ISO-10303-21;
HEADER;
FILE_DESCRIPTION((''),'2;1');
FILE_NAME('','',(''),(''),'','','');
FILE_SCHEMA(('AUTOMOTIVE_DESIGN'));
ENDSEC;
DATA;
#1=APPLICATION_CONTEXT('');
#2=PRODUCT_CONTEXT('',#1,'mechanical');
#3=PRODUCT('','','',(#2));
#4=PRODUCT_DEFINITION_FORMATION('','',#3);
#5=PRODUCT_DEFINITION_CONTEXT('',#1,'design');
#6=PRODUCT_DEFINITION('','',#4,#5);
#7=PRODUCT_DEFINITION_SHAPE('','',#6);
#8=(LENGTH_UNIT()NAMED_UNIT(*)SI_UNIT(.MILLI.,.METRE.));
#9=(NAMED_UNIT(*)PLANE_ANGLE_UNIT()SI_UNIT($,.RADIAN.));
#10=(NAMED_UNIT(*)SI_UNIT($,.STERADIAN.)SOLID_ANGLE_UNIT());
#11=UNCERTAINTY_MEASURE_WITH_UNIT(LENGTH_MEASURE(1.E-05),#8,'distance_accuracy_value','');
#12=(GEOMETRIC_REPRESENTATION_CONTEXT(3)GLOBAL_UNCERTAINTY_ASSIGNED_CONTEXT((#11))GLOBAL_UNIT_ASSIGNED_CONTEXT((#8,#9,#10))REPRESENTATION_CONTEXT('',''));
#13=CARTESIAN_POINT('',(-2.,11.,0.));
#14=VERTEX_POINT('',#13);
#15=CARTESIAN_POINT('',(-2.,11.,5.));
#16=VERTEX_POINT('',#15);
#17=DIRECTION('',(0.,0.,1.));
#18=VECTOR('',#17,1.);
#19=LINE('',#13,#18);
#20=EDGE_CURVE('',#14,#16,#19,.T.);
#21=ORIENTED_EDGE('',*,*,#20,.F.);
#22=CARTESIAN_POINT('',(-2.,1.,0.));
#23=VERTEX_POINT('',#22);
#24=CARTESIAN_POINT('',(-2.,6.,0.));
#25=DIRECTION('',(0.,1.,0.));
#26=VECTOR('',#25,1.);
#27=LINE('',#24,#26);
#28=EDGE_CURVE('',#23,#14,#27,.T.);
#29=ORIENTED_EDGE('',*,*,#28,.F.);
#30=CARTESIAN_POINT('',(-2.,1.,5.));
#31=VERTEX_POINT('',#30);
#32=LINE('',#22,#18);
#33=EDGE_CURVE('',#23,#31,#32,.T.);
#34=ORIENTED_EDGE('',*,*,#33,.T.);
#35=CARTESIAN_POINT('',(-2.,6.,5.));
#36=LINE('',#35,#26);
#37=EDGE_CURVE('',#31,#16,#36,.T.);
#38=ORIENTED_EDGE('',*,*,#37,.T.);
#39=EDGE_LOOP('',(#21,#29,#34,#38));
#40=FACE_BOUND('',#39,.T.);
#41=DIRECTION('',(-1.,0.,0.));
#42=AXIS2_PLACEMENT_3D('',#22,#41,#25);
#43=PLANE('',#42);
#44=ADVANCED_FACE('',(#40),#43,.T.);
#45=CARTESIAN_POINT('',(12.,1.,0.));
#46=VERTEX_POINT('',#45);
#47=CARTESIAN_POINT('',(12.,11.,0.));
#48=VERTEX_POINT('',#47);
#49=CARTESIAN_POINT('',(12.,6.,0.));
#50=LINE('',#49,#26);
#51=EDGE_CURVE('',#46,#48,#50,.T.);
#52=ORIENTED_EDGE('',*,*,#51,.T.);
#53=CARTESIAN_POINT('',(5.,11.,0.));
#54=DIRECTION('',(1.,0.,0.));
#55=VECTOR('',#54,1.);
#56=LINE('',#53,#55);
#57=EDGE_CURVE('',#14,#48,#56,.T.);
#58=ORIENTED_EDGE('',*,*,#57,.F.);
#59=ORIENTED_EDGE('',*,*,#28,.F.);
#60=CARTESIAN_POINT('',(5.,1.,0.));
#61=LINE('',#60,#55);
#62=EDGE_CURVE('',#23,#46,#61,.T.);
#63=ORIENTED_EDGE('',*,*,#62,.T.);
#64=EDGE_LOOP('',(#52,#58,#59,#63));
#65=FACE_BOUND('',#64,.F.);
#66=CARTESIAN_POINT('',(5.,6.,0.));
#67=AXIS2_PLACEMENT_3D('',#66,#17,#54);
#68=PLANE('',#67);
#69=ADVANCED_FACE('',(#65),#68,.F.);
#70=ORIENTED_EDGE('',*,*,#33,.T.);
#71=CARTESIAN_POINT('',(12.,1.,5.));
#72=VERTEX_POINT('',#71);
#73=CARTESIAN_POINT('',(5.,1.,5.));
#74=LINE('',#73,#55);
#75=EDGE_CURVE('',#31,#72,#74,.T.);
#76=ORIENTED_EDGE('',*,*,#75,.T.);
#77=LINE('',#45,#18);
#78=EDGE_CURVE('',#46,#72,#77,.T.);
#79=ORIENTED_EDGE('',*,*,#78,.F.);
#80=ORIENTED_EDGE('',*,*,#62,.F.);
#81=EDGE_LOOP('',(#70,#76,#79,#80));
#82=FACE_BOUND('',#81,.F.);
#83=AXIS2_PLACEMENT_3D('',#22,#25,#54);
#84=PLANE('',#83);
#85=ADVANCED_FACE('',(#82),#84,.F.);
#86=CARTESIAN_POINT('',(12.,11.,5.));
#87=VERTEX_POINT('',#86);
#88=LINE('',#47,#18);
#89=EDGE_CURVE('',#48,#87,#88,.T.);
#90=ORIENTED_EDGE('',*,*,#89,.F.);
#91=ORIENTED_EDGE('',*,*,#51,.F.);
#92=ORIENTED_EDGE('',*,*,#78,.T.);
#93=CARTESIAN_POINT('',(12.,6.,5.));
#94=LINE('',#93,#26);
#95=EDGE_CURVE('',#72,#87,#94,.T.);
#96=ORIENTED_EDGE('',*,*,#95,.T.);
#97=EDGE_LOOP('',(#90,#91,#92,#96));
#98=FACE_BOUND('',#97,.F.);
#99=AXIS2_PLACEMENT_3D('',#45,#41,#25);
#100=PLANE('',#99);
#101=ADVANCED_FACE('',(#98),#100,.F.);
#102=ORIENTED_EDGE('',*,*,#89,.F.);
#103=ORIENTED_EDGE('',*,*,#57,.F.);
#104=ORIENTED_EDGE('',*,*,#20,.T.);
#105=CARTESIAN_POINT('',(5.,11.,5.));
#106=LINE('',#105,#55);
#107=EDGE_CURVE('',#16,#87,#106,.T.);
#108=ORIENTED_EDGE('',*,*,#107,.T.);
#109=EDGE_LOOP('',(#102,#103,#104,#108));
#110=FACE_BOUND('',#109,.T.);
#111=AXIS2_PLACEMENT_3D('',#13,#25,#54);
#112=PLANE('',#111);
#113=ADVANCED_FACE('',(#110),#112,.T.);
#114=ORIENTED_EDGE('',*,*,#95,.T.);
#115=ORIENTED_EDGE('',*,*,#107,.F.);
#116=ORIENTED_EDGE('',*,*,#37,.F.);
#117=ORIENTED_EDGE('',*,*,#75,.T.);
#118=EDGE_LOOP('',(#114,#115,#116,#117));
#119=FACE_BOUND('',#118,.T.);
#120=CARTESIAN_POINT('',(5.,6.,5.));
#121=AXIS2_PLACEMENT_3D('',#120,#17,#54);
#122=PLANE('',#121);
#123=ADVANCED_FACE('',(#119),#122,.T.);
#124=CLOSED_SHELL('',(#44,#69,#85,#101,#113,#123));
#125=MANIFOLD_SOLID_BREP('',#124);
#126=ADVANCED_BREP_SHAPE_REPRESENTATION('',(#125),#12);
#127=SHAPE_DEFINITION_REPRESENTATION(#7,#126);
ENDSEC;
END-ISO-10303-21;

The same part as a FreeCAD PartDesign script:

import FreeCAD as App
import Part
import Sketcher


def add_polygon(sketch, points):
    """Adds a closed chain of lines whose ends are joined by coincident constraints."""
    first, n = sketch.GeometryCount, len(points)
    for a, b in zip(points, points[1:] + points[:1]):
        sketch.addGeometry(Part.LineSegment(App.Vector(*a, 0), App.Vector(*b, 0)), False)
    for i in range(n):
        sketch.addConstraint(Sketcher.Constraint("Coincident", first + i, 2, first + (i + 1) % n, 1))

doc = App.newDocument("Part")
params = doc.addObject("Spreadsheet::Sheet", "Params")
for row, (alias, value) in enumerate([
    ("sketch1_width", "14 mm"),
    ("sketch1_height", "10 mm"),
    ("pad1_length", "5 mm"),
], start=1):
    params.set(f"A{row}", alias)
    params.set(f"B{row}", "=" + value)
    params.setAlias(f"B{row}", alias)

body = doc.addObject("PartDesign::Body", "Body")

# Sketch on XY plane
sketch1 = body.newObject("Sketcher::SketchObject", "Sketch")
sketch1.AttachmentSupport = (doc.getObject("XY_Plane"), [""])
sketch1.MapMode = "FlatFace"
add_polygon(sketch1, [(-2, 11), (-2, 1), (12, 1), (12, 11)])  # lines 0-3
sketch1.addConstraint([
    Sketcher.Constraint("Vertical", 0),
    Sketcher.Constraint("Horizontal", 1),
    Sketcher.Constraint("Vertical", 2),
    Sketcher.Constraint("Horizontal", 3),
    Sketcher.Constraint("DistanceX", 1, 1, 1, 2, 14.0),
    Sketcher.Constraint("DistanceY", 0, 2, 0, 1, 10.0),
    Sketcher.Constraint("DistanceX", 0, 2, -1, 1, 2.0),
    Sketcher.Constraint("DistanceY", -1, 1, 0, 2, 1.0),
])
sketch1.setExpression("Constraints[8]", "Params.sketch1_width")
sketch1.setExpression("Constraints[9]", "Params.sketch1_height")
pad1 = body.newObject("PartDesign::Pad", "Pad")
pad1.Profile = sketch1
pad1.setExpression("Length", "Params.pad1_length")

doc.recompute()
